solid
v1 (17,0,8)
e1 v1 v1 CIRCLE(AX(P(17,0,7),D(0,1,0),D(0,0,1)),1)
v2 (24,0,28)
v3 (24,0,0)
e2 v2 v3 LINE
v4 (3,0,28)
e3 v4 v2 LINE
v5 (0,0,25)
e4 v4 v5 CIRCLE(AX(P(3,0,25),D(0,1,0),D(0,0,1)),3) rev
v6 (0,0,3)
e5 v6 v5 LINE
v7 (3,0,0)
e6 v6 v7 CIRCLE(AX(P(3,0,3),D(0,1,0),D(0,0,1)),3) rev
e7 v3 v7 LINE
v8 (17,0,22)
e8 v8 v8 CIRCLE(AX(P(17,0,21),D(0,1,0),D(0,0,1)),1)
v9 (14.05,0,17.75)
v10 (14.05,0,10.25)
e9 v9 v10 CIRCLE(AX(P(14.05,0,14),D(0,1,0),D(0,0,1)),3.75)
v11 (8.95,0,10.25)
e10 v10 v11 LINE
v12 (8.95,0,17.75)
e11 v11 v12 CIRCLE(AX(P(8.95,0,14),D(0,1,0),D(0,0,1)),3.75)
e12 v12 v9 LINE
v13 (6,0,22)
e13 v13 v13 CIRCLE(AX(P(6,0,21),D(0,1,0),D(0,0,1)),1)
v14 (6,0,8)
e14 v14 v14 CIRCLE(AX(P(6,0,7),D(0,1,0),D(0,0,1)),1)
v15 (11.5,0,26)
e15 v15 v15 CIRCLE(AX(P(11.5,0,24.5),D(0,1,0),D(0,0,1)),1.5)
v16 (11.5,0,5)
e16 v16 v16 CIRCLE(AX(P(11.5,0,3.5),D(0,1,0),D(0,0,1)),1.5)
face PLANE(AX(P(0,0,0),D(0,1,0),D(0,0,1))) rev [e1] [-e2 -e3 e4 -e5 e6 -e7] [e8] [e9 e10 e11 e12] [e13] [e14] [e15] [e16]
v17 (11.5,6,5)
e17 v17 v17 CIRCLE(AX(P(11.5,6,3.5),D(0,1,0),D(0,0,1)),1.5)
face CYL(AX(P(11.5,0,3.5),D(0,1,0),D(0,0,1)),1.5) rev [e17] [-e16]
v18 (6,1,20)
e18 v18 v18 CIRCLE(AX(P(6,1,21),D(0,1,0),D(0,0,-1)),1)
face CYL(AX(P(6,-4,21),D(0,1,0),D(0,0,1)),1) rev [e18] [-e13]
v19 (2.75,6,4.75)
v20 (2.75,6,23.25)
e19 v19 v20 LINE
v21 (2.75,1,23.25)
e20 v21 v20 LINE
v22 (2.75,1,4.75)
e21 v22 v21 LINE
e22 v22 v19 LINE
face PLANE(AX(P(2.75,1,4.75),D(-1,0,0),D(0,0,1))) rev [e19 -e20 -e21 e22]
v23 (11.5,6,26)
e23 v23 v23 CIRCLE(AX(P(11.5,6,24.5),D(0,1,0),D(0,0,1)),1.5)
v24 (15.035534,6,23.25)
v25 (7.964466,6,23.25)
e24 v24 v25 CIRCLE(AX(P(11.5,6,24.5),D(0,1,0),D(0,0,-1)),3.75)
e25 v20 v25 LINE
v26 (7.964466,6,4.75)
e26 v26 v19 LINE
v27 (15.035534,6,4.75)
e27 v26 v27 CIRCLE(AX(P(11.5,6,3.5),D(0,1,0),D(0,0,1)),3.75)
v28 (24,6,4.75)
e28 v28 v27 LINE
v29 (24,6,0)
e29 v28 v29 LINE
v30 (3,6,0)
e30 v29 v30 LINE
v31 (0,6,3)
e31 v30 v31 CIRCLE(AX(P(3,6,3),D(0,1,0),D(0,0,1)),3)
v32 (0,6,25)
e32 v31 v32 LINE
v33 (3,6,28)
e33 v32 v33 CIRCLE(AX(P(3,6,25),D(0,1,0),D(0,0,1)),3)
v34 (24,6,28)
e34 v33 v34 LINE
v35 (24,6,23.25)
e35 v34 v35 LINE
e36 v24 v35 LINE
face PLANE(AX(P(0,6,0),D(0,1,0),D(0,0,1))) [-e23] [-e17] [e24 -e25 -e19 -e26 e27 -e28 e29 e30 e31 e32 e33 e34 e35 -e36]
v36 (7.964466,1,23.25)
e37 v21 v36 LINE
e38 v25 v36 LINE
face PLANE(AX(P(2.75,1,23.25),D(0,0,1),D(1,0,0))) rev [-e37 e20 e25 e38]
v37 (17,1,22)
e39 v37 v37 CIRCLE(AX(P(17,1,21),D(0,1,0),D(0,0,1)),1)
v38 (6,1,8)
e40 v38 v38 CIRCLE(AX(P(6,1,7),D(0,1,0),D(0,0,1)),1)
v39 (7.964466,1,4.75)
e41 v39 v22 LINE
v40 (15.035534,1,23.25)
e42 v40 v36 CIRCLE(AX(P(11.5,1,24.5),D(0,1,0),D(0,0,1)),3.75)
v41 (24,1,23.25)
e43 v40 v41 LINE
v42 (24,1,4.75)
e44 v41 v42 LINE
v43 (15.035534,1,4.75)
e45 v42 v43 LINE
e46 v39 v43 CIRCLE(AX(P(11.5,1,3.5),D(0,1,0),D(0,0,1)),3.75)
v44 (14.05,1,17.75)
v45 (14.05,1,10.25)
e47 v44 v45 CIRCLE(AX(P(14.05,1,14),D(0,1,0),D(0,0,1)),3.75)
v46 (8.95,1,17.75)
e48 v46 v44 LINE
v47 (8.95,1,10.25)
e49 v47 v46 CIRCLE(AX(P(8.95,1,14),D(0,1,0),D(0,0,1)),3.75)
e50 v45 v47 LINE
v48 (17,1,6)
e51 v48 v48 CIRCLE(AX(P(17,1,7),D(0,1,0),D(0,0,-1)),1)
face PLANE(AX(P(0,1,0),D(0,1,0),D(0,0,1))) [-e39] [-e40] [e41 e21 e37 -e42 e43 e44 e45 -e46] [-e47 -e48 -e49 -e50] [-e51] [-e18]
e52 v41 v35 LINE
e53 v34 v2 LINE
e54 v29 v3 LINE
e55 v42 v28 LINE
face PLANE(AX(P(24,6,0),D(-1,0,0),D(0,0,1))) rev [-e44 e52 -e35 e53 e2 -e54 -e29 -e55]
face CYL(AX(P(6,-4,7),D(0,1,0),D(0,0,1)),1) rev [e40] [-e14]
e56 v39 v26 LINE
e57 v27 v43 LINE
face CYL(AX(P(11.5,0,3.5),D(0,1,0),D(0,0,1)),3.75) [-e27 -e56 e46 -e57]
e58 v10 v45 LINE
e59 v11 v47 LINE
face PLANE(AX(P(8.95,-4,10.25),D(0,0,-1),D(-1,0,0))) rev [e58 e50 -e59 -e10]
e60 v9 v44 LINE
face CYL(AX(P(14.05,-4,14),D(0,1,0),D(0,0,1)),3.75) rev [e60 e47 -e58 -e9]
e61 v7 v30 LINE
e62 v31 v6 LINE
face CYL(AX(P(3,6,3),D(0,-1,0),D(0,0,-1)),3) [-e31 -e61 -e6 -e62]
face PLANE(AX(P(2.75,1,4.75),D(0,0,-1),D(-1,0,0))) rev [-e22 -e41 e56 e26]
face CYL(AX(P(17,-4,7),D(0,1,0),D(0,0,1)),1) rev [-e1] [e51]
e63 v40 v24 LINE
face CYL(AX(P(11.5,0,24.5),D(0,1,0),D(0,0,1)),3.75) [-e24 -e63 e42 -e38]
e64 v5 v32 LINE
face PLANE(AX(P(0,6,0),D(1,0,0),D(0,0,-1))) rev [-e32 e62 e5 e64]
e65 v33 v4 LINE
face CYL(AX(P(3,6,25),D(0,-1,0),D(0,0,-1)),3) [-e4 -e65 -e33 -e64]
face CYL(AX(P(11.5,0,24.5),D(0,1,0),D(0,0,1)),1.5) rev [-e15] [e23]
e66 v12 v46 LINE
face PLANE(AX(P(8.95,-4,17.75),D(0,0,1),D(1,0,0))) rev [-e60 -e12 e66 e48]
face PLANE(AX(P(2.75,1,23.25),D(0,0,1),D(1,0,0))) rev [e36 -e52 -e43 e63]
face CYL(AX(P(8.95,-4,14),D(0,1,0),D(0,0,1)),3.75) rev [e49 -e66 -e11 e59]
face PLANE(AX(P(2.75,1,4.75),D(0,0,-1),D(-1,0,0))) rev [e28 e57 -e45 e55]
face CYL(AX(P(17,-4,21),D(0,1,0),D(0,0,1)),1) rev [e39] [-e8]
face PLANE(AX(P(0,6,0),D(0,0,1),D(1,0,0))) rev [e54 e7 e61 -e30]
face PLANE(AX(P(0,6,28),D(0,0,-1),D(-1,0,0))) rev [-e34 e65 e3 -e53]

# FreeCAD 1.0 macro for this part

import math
import FreeCAD as App
import Part
import Sketcher

V = App.Vector


def edges_at(feature, points):
    """Names of the edges that pass closest to the given points."""
    edges = feature.Shape.Edges
    near = lambda p: min(range(len(edges)), key=lambda i: edges[i].distToShape(Part.Vertex(*p))[0])
    return sorted({f"Edge{near(p) + 1}" for p in points})

doc = App.newDocument("Part")
body = doc.addObject("PartDesign::Body", "Body")

sketch1 = doc.addObject("Sketcher::SketchObject", "Sketch")
body.addObject(sketch1)
sketch1.AttachmentSupport = (doc.XZ_Plane, [""])
sketch1.MapMode = "FlatFace"
sketch1.addGeometry([
    Part.LineSegment(V(0, 0, 0), V(0, 28, 0)),
    Part.LineSegment(V(0, 28, 0), V(24, 28, 0)),
    Part.LineSegment(V(24, 28, 0), V(24, 0, 0)),
    Part.LineSegment(V(24, 0, 0), V(0, 0, 0)),
], False)
sketch1.addConstraint([
    Sketcher.Constraint("Coincident", 0, 2, 1, 1),
    Sketcher.Constraint("Coincident", 1, 2, 2, 1),
    Sketcher.Constraint("Coincident", 2, 2, 3, 1),
    Sketcher.Constraint("Coincident", 3, 2, 0, 1),
    Sketcher.Constraint("Vertical", 0),
    Sketcher.Constraint("Horizontal", 1),
    Sketcher.Constraint("Vertical", 2),
    Sketcher.Constraint("Horizontal", 3),
    Sketcher.Constraint("Coincident", 3, 2, -1, 1),
    Sketcher.Constraint("DistanceX", 1, 1, 1, 2, 24.0),
    Sketcher.Constraint("DistanceY", 0, 1, 0, 2, 28.0),
])
pad1 = doc.addObject("PartDesign::Pad", "Pad")
body.addObject(pad1)
pad1.Profile = sketch1
pad1.Length = 6
pad1.Reversed = True

sketch2 = doc.addObject("Sketcher::SketchObject", "Sketch001")
body.addObject(sketch2)
sketch2.AttachmentSupport = (doc.XZ_Plane, [""])
sketch2.MapMode = "FlatFace"
sketch2.AttachmentOffset = App.Placement(V(0, 0, -6), App.Rotation())
sketch2.addGeometry([
    Part.LineSegment(V(3, 5, 0), V(3, 23, 0)),
    Part.LineSegment(V(3, 23, 0), V(20, 23, 0)),
    Part.LineSegment(V(20, 23, 0), V(20, 5, 0)),
    Part.LineSegment(V(20, 5, 0), V(3, 5, 0)),
], False)
sketch2.addConstraint([
    Sketcher.Constraint("Coincident", 0, 2, 1, 1),
    Sketcher.Constraint("Coincident", 1, 2, 2, 1),
    Sketcher.Constraint("Coincident", 2, 2, 3, 1),
    Sketcher.Constraint("Coincident", 3, 2, 0, 1),
    Sketcher.Constraint("Vertical", 0),
    Sketcher.Constraint("Horizontal", 1),
    Sketcher.Constraint("Vertical", 2),
    Sketcher.Constraint("Horizontal", 3),
    Sketcher.Constraint("DistanceX", 1, 1, 1, 2, 17.5),
    Sketcher.Constraint("DistanceY", 0, 1, 0, 2, 18.5),
    Sketcher.Constraint("DistanceX", -1, 1, 0, 2, 2.75),
    Sketcher.Constraint("DistanceY", -1, 1, 0, 2, 23.25),
])
pocket1 = doc.addObject("PartDesign::Pocket", "Pocket")
body.addObject(pocket1)
pocket1.Profile = sketch2
pocket1.Length = 5
pocket1.Reversed = True

sketch3 = doc.addObject("Sketcher::SketchObject", "Sketch002")
body.addObject(sketch3)
sketch3.AttachmentSupport = (doc.XZ_Plane, [""])
sketch3.MapMode = "FlatFace"
sketch3.AttachmentOffset = App.Placement(V(0, 0, -1), App.Rotation())
sketch3.addGeometry([
    Part.Circle(V(6, 7, 0), V(0, 0, 1), 1),
    Part.Circle(V(17, 7, 0), V(0, 0, 1), 1),
    Part.Circle(V(6, 21, 0), V(0, 0, 1), 1),
    Part.Circle(V(17, 21, 0), V(0, 0, 1), 1),
    Part.LineSegment(V(14.1, 10.2, 0), V(8.9, 10.2, 0)),
    Part.ArcOfCircle(Part.Circle(V(8.9, 14, 0), V(0, 0, 1), 3.8), math.radians(90), math.radians(270)),
    Part.LineSegment(V(8.9, 17.8, 0), V(14.1, 17.8, 0)),
    Part.ArcOfCircle(Part.Circle(V(14.1, 14, 0), V(0, 0, 1), 3.8), math.radians(-90), math.radians(90)),
], False)
sketch3.addConstraint([
    Sketcher.Constraint("Tangent", 4, 2, 5, 2),
    Sketcher.Constraint("Tangent", 5, 1, 6, 1),
    Sketcher.Constraint("Tangent", 6, 2, 7, 2),
    Sketcher.Constraint("Tangent", 7, 1, 4, 1),
    Sketcher.Constraint("Horizontal", 4),
    Sketcher.Constraint("Horizontal", 6),
    Sketcher.Constraint("Equal", 0, 1),
    Sketcher.Constraint("Equal", 1, 2),
    Sketcher.Constraint("Equal", 2, 3),
    Sketcher.Constraint("Horizontal", 0, 3, 1, 3),
    Sketcher.Constraint("Horizontal", 2, 3, 3, 3),
    Sketcher.Constraint("Vertical", 0, 3, 2, 3),
    Sketcher.Constraint("Vertical", 1, 3, 3, 3),
    Sketcher.Constraint("Diameter", 0, 2.0),
    Sketcher.Constraint("Radius", 5, 3.75),
    Sketcher.Constraint("DistanceX", 4, 2, 4, 1, 5.1),
    Sketcher.Constraint("DistanceX", -1, 1, 0, 3, 6.0),
    Sketcher.Constraint("DistanceY", -1, 1, 0, 3, 7.0),
    Sketcher.Constraint("DistanceX", -1, 1, 1, 3, 17.0),
    Sketcher.Constraint("DistanceY", -1, 1, 2, 3, 21.0),
    Sketcher.Constraint("DistanceY", -1, 1, 5, 3, 14.0),
    Sketcher.Constraint("DistanceX", -1, 1, 5, 3, 8.95),
])
pocket2 = doc.addObject("PartDesign::Pocket", "Pocket001")
body.addObject(pocket2)
pocket2.Profile = sketch3
pocket2.Length = 5
pocket2.Reversed = True

sketch4 = doc.addObject("Sketcher::SketchObject", "Sketch003")
body.addObject(sketch4)
sketch4.AttachmentSupport = (doc.XZ_Plane, [""])
sketch4.MapMode = "FlatFace"
sketch4.AttachmentOffset = App.Placement(V(0, 0, -6), App.Rotation())
sketch4.addGeometry([
    Part.LineSegment(V(20.2, 4.8, 0), V(20.2, 23.2, 0)),
    Part.LineSegment(V(20.2, 23.2, 0), V(24, 23.2, 0)),
    Part.LineSegment(V(24, 23.2, 0), V(24, 4.8, 0)),
    Part.LineSegment(V(24, 4.8, 0), V(20.2, 4.8, 0)),
], False)
sketch4.addConstraint([
    Sketcher.Constraint("Coincident", 0, 2, 1, 1),
    Sketcher.Constraint("Coincident", 1, 2, 2, 1),
    Sketcher.Constraint("Coincident", 2, 2, 3, 1),
    Sketcher.Constraint("Coincident", 3, 2, 0, 1),
    Sketcher.Constraint("Vertical", 0),
    Sketcher.Constraint("Horizontal", 1),
    Sketcher.Constraint("Vertical", 2),
    Sketcher.Constraint("Horizontal", 3),
    Sketcher.Constraint("DistanceY", 0, 1, 0, 2, 18.5),
    Sketcher.Constraint("DistanceX", -1, 1, 1, 2, 24.0),
    Sketcher.Constraint("DistanceX", 1, 1, 1, 2, 3.75),
    Sketcher.Constraint("DistanceY", -1, 1, 0, 2, 23.25),
])
pocket3 = doc.addObject("PartDesign::Pocket", "Pocket002")
body.addObject(pocket3)
pocket3.Profile = sketch4
pocket3.Length = 5
pocket3.Reversed = True
doc.recompute()

fillet = doc.addObject("PartDesign::Fillet", "Fillet")
body.addObject(fillet)
fillet.Base = (pocket3, edges_at(pocket3, [(0, 3, 0), (0, 3, 28)]))
fillet.Radius = 3

sketch5 = doc.addObject("Sketcher::SketchObject", "Sketch004")
body.addObject(sketch5)
sketch5.AttachmentSupport = (doc.XZ_Plane, [""])
sketch5.MapMode = "FlatFace"
sketch5.AttachmentOffset = App.Placement(V(0, 0, -6), App.Rotation())
sketch5.addGeometry([
    Part.LineSegment(V(12.8, 0, 0), V(10.2, 0, 0)),
    Part.ArcOfCircle(Part.Circle(V(11.5, 3.5, 0), V(0, 0, 1), 3.8), math.radians(-69), math.radians(249)),
    Part.Circle(V(11.5, 3.5, 0), V(0, 0, 1), 1.5),
    Part.LineSegment(V(10.2, 28, 0), V(12.8, 28, 0)),
    Part.ArcOfCircle(Part.Circle(V(11.5, 24.5, 0), V(0, 0, 1), 3.8), math.radians(111), math.radians(429)),
    Part.Circle(V(11.5, 24.5, 0), V(0, 0, 1), 1.5),
], False)
sketch5.addConstraint([
    Sketcher.Constraint("Coincident", 0, 1, 1, 1),
    Sketcher.Constraint("Coincident", 1, 2, 0, 2),
    Sketcher.Constraint("Coincident", 3, 1, 4, 1),
    Sketcher.Constraint("Coincident", 4, 2, 3, 2),
    Sketcher.Constraint("Horizontal", 0),
    Sketcher.Constraint("Horizontal", 3),
    Sketcher.Constraint("Coincident", 2, 3, 1, 3),
    Sketcher.Constraint("Coincident", 5, 3, 4, 3),
    Sketcher.Constraint("Equal", 1, 4),
    Sketcher.Constraint("Equal", 2, 5),
    Sketcher.Constraint("PointOnObject", 0, 1, -1),
    Sketcher.Constraint("Vertical", 2, 3, 4, 3),
    Sketcher.Constraint("Vertical", 1, 2, 3, 1),
    Sketcher.Constraint("Diameter", 2, 3.0),
    Sketcher.Constraint("Radius", 1, 3.75),
    Sketcher.Constraint("DistanceY", -1, 1, 3, 1, 28.0),
    Sketcher.Constraint("DistanceY", 1, 3, 4, 3, 21.0),
    Sketcher.Constraint("DistanceX", -1, 1, 1, 3, 11.5),
])
pad2 = doc.addObject("PartDesign::Pad", "Pad001")
body.addObject(pad2)
pad2.Profile = sketch5
pad2.Length = 6

sketch6 = doc.addObject("Sketcher::SketchObject", "Sketch005")
body.addObject(sketch6)
sketch6.AttachmentSupport = (doc.XZ_Plane, [""])
sketch6.MapMode = "FlatFace"
sketch6.AttachmentOffset = App.Placement(V(0, 0, -6), App.Rotation())
sketch6.addGeometry([
    Part.Circle(V(11.5, 3.5, 0), V(0, 0, 1), 1.5),
    Part.Circle(V(11.5, 24.5, 0), V(0, 0, 1), 1.5),
], False)
sketch6.addConstraint([
    Sketcher.Constraint("Equal", 0, 1),
    Sketcher.Constraint("Vertical", 0, 3, 1, 3),
    Sketcher.Constraint("Diameter", 0, 3.0),
    Sketcher.Constraint("DistanceY", 0, 3, 1, 3, 21.0),
    Sketcher.Constraint("DistanceX", -1, 1, 0, 3, 11.5),
    Sketcher.Constraint("DistanceY", -1, 1, 0, 3, 3.5),
])
pocket4 = doc.addObject("PartDesign::Pocket", "Pocket003")
body.addObject(pocket4)
pocket4.Profile = sketch6
pocket4.Length = 10
pocket4.Reversed = True

doc.recompute()
